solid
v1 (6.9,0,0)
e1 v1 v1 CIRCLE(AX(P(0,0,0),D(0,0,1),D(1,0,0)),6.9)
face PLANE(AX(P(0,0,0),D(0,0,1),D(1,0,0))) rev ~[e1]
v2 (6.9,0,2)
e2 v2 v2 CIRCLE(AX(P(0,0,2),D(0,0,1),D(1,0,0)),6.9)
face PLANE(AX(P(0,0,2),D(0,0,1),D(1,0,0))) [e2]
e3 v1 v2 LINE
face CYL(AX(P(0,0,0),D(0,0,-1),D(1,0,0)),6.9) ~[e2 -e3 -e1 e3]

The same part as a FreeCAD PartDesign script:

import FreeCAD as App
import Part
import Sketcher
from FreeCAD import Vector
Q = App.Units.Quantity

doc = App.newDocument("Part")
body = doc.addObject("PartDesign::Body", "Body")

# Sketch on XY plane
sketch1 = body.newObject("Sketcher::SketchObject", "Sketch")
sketch1.AttachmentSupport = (doc.getObject("XY_Plane"), [""])
sketch1.MapMode = "FlatFace"
sketch1.addGeometry(Part.Circle(Vector(0, 0, 0), Vector(0, 0, 1), 6.9), False)
sketch1.addConstraint([
    Sketcher.Constraint("Coincident", 0, 3, -1, 1),
    Sketcher.Constraint("Diameter", 0, Q("13.8 mm")),
])
pad1 = body.newObject("PartDesign::Pad", "Pad")
pad1.Profile = sketch1
pad1.Length = 2

doc.recompute()
